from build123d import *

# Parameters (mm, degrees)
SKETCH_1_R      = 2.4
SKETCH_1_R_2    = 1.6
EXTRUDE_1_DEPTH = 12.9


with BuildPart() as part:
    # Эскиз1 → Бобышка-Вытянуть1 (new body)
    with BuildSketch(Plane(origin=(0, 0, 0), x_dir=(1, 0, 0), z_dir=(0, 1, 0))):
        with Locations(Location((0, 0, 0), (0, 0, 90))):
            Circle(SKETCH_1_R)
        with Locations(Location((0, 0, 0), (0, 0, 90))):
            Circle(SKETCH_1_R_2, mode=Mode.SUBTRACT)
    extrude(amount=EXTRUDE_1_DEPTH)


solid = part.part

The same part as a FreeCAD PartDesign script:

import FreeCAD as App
import Part
import Sketcher

V = App.Vector

doc = App.newDocument("Part")
params = doc.addObject("Spreadsheet::Sheet", "Params")
for row, (alias, value) in enumerate([
    ("sketch1_diameter", "4.8 mm"),
    ("sketch1_diameter2", "3.2 mm"),
    ("pad1_length", "12.9 mm"),
], start=1):
    params.set(f"A{row}", alias)
    params.set(f"B{row}", "=" + value)
    params.setAlias(f"B{row}", alias)

body = doc.addObject("PartDesign::Body", "Body")

sketch1 = doc.addObject("Sketcher::SketchObject", "Sketch")
body.addObject(sketch1)
sketch1.AttachmentSupport = (doc.XZ_Plane, [""])
sketch1.MapMode = "FlatFace"
sketch1.addGeometry([
    Part.Circle(V(0, 0, 0), V(0, 0, 1), 2.4),
    Part.Circle(V(0, 0, 0), V(0, 0, 1), 1.6),
], False)
sketch1.addConstraint([
    Sketcher.Constraint("Coincident", 0, 3, -1, 1),
    Sketcher.Constraint("Coincident", 1, 3, -1, 1),
    Sketcher.Constraint("Diameter", 0, 4.8),
    Sketcher.Constraint("Diameter", 1, 3.2),
])
sketch1.setExpression("Constraints[2]", "Params.sketch1_diameter")
sketch1.setExpression("Constraints[3]", "Params.sketch1_diameter2")
pad1 = doc.addObject("PartDesign::Pad", "Pad")
body.addObject(pad1)
pad1.Profile = sketch1
pad1.setExpression("Length", "Params.pad1_length")
pad1.Reversed = True

doc.recompute()
